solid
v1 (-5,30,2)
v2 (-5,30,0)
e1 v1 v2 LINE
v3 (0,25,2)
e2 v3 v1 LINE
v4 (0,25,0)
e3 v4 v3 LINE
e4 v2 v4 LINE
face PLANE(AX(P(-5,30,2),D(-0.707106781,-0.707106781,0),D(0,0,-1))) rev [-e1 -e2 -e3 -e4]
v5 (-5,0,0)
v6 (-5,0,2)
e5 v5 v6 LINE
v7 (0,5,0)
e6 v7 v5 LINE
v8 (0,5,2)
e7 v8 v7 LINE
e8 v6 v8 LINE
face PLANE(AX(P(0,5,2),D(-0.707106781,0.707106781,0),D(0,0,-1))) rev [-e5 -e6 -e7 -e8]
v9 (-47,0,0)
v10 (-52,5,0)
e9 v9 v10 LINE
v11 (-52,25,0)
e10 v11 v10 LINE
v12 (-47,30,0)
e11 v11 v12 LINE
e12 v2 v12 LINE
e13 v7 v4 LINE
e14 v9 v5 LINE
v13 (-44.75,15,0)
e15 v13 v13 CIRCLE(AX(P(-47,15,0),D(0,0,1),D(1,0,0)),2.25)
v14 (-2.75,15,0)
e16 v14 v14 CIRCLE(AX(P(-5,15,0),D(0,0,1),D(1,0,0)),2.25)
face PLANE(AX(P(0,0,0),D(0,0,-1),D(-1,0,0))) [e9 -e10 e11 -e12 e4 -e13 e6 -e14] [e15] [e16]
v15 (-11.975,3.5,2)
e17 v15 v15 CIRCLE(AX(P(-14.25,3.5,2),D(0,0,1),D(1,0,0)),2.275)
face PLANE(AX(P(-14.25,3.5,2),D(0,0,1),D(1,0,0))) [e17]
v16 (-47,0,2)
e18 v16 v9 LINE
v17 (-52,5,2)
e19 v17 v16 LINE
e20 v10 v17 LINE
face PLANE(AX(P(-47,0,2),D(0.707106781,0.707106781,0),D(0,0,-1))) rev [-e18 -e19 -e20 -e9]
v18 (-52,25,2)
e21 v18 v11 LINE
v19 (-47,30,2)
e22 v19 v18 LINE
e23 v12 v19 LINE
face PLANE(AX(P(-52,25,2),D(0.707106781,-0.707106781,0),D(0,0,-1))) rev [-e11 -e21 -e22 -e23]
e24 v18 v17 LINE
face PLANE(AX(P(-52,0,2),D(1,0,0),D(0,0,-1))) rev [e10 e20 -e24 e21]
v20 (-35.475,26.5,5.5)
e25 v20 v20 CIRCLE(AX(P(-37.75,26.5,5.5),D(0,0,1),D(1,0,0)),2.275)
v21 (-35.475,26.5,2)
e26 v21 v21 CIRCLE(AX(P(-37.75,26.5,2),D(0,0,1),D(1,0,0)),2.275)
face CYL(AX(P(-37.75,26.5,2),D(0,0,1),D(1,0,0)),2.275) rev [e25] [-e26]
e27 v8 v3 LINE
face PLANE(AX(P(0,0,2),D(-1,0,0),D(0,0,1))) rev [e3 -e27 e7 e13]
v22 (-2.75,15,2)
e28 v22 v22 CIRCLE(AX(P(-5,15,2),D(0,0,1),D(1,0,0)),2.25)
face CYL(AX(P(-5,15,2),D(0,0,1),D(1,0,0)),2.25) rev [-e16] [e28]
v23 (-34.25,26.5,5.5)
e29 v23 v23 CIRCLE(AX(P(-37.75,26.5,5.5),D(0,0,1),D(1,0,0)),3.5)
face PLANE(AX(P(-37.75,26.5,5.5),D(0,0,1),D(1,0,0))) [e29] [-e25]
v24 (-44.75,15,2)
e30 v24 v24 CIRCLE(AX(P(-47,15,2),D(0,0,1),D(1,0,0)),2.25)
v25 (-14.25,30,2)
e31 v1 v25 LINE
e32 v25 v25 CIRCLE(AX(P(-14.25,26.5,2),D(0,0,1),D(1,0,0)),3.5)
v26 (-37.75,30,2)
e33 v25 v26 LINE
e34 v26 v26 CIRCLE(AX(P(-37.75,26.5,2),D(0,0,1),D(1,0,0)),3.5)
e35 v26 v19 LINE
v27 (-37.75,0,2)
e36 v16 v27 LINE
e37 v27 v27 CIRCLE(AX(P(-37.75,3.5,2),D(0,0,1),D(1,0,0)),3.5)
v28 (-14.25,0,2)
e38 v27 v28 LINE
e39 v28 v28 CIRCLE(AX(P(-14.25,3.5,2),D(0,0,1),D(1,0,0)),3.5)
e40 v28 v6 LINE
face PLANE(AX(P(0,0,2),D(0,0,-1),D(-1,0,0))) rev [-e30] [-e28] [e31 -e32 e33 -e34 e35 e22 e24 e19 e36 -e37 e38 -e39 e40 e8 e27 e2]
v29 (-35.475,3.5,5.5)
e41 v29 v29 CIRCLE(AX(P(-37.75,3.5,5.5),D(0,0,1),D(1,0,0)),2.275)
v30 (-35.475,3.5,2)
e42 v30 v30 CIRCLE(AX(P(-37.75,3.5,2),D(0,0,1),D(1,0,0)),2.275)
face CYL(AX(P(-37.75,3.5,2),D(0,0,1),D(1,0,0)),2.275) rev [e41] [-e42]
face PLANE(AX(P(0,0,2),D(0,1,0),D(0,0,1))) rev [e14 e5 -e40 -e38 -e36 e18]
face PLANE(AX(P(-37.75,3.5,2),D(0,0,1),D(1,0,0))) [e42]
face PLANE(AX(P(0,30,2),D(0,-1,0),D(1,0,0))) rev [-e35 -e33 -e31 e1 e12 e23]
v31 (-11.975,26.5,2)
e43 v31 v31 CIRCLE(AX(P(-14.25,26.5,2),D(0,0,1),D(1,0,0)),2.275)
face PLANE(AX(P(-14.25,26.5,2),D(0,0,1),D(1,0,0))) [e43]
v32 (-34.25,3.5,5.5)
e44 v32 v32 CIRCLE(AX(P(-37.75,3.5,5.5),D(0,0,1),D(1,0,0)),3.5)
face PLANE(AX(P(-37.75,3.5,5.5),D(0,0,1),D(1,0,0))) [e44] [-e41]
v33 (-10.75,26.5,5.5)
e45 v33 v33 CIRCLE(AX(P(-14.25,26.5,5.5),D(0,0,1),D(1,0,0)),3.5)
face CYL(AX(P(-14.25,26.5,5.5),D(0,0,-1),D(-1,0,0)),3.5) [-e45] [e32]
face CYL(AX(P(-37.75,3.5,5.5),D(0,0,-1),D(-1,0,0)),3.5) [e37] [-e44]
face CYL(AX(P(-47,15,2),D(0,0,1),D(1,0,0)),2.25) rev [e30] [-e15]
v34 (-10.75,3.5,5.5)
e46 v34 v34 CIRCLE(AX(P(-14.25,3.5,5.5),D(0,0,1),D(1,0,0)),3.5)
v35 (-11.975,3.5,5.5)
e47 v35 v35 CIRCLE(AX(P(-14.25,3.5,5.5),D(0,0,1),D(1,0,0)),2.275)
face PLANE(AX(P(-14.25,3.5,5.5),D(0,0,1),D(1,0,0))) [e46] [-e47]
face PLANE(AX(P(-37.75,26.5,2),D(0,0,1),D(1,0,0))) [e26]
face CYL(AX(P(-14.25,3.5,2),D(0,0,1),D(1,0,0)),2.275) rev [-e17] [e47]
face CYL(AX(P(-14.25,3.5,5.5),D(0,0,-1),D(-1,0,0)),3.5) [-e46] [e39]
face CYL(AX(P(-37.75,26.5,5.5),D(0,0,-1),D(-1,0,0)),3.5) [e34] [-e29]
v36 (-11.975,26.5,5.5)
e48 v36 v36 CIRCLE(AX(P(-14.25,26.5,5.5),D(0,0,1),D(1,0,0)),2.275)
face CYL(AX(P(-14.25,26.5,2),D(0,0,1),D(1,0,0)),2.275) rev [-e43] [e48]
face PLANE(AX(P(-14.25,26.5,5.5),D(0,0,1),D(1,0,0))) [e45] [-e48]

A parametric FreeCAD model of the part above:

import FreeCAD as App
import Part
import Sketcher


def edges_at(feature, points):
    """Names of the edges that pass closest to the given points."""
    edges = feature.Shape.Edges
    near = lambda p: min(range(len(edges)), key=lambda i: edges[i].distToShape(Part.Vertex(*p))[0])
    return sorted({f"Edge{near(p) + 1}" for p in points})


def add_polygon(sketch, points):
    """Adds a closed chain of lines whose ends are joined by coincident constraints."""
    first, n = sketch.GeometryCount, len(points)
    for a, b in zip(points, points[1:] + points[:1]):
        sketch.addGeometry(Part.LineSegment(App.Vector(*a, 0), App.Vector(*b, 0)), False)
    for i in range(n):
        sketch.addConstraint(Sketcher.Constraint("Coincident", first + i, 2, first + (i + 1) % n, 1))

doc = App.newDocument("Part")
body = doc.addObject("PartDesign::Body", "Body")

# Sketch on XY plane
sketch1 = body.newObject("Sketcher::SketchObject", "Sketch")
sketch1.AttachmentSupport = (doc.getObject("XY_Plane"), [""])
sketch1.MapMode = "FlatFace"
add_polygon(sketch1, [(-52, 0), (0, 0), (0, 30), (-52, 30)])  # lines 0-3
sketch1.addConstraint([
    Sketcher.Constraint("Horizontal", 0),
    Sketcher.Constraint("Vertical", 1),
    Sketcher.Constraint("Horizontal", 2),
    Sketcher.Constraint("Vertical", 3),
    Sketcher.Constraint("Coincident", 0, 2, -1, 1),
    Sketcher.Constraint("DistanceX", 0, 1, 0, 2, 52.0),
    Sketcher.Constraint("DistanceY", 1, 1, 1, 2, 30.0),
])
pad1 = body.newObject("PartDesign::Pad", "Pad")
pad1.Profile = sketch1
pad1.Length = 2

# Sketch on XY plane
sketch2 = body.newObject("Sketcher::SketchObject", "Sketch001")
sketch2.AttachmentSupport = (doc.getObject("XY_Plane"), [""])
sketch2.MapMode = "FlatFace"
sketch2.AttachmentOffset = App.Placement(App.Vector(0, 0, 2), App.Rotation())
sketch2.addGeometry([
    Part.Circle(App.Vector(-37.75, 26.5, 0), App.Vector(0, 0, 1), 3.5),
    Part.Circle(App.Vector(-14.25, 26.5, 0), App.Vector(0, 0, 1), 3.5),
    Part.Circle(App.Vector(-14.25, 3.5, 0), App.Vector(0, 0, 1), 3.5),
    Part.Circle(App.Vector(-37.75, 3.5, 0), App.Vector(0, 0, 1), 3.5),
], False)
sketch2.addConstraint([
    Sketcher.Constraint("Equal", 0, 1),
    Sketcher.Constraint("Equal", 1, 2),
    Sketcher.Constraint("Equal", 2, 3),
    Sketcher.Constraint("Horizontal", 0, 3, 1, 3),
    Sketcher.Constraint("Horizontal", 2, 3, 3, 3),
    Sketcher.Constraint("Vertical", 1, 3, 2, 3),
    Sketcher.Constraint("Vertical", 0, 3, 3, 3),
    Sketcher.Constraint("Diameter", 0, 7.0),
    Sketcher.Constraint("DistanceY", 2, 3, 1, 3, 23.0),
    Sketcher.Constraint("DistanceY", -1, 1, 0, 3, 26.5),
    Sketcher.Constraint("DistanceX", 0, 3, 1, 3, 23.5),
    Sketcher.Constraint("DistanceX", 0, 3, -1, 1, 37.75),
])
pad2 = body.newObject("PartDesign::Pad", "Pad001")
pad2.Profile = sketch2
pad2.Length = 3.5

# Sketch on XY plane
sketch3 = body.newObject("Sketcher::SketchObject", "Sketch002")
sketch3.AttachmentSupport = (doc.getObject("XY_Plane"), [""])
sketch3.MapMode = "FlatFace"
sketch3.AttachmentOffset = App.Placement(App.Vector(0, 0, 5.5), App.Rotation())
sketch3.addGeometry([
    Part.Circle(App.Vector(-37.75, 26.5, 0), App.Vector(0, 0, 1), 2.275),
    Part.Circle(App.Vector(-14.25, 26.5, 0), App.Vector(0, 0, 1), 2.275),
    Part.Circle(App.Vector(-14.25, 3.5, 0), App.Vector(0, 0, 1), 2.275),
    Part.Circle(App.Vector(-37.75, 3.5, 0), App.Vector(0, 0, 1), 2.275),
], False)
sketch3.addConstraint([
    Sketcher.Constraint("Equal", 0, 1),
    Sketcher.Constraint("Equal", 1, 2),
    Sketcher.Constraint("Equal", 2, 3),
    Sketcher.Constraint("Horizontal", 0, 3, 1, 3),
    Sketcher.Constraint("Horizontal", 2, 3, 3, 3),
    Sketcher.Constraint("Vertical", 1, 3, 2, 3),
    Sketcher.Constraint("Vertical", 0, 3, 3, 3),
    Sketcher.Constraint("Diameter", 0, 4.55),
    Sketcher.Constraint("DistanceY", 2, 3, 1, 3, 23.0),
    Sketcher.Constraint("DistanceY", -1, 1, 0, 3, 26.5),
    Sketcher.Constraint("DistanceX", 0, 3, 1, 3, 23.5),
    Sketcher.Constraint("DistanceX", 0, 3, -1, 1, 37.75),
])
pocket1 = body.newObject("PartDesign::Pocket", "Pocket")
pocket1.Profile = sketch3
pocket1.Length = 3.5

# Sketch on XY plane
sketch4 = body.newObject("Sketcher::SketchObject", "Sketch003")
sketch4.AttachmentSupport = (doc.getObject("XY_Plane"), [""])
sketch4.MapMode = "FlatFace"
sketch4.AttachmentOffset = App.Placement(App.Vector(0, 0, 2), App.Rotation())
sketch4.addGeometry([
    Part.Circle(App.Vector(-47, 15, 0), App.Vector(0, 0, 1), 2.25),
    Part.Circle(App.Vector(-5, 15, 0), App.Vector(0, 0, 1), 2.25),
], False)
sketch4.addConstraint([
    Sketcher.Constraint("Equal", 0, 1),
    Sketcher.Constraint("Horizontal", 0, 3, 1, 3),
    Sketcher.Constraint("Diameter", 0, 4.5),
    Sketcher.Constraint("DistanceX", 0, 3, -1, 1, 47.0),
    Sketcher.Constraint("DistanceY", -1, 1, 0, 3, 15.0),
    Sketcher.Constraint("DistanceX", 1, 3, -1, 1, 5.0),
])
doc.recompute()
hole = body.newObject("PartDesign::Hole", "Hole")
hole.Profile = sketch4
hole.ThreadType = "None"
hole.Diameter = 4.5
hole.DepthType = "ThroughAll"
doc.recompute()

chamfer = body.newObject("PartDesign::Chamfer", "Chamfer")
chamfer.Base = (hole, edges_at(hole, [
    (-52, 0, 1),
    (-52, 30, 1),
    (0, 30, 1),
    (0, 0, 1),
]))
chamfer.Size = 5

doc.recompute()
